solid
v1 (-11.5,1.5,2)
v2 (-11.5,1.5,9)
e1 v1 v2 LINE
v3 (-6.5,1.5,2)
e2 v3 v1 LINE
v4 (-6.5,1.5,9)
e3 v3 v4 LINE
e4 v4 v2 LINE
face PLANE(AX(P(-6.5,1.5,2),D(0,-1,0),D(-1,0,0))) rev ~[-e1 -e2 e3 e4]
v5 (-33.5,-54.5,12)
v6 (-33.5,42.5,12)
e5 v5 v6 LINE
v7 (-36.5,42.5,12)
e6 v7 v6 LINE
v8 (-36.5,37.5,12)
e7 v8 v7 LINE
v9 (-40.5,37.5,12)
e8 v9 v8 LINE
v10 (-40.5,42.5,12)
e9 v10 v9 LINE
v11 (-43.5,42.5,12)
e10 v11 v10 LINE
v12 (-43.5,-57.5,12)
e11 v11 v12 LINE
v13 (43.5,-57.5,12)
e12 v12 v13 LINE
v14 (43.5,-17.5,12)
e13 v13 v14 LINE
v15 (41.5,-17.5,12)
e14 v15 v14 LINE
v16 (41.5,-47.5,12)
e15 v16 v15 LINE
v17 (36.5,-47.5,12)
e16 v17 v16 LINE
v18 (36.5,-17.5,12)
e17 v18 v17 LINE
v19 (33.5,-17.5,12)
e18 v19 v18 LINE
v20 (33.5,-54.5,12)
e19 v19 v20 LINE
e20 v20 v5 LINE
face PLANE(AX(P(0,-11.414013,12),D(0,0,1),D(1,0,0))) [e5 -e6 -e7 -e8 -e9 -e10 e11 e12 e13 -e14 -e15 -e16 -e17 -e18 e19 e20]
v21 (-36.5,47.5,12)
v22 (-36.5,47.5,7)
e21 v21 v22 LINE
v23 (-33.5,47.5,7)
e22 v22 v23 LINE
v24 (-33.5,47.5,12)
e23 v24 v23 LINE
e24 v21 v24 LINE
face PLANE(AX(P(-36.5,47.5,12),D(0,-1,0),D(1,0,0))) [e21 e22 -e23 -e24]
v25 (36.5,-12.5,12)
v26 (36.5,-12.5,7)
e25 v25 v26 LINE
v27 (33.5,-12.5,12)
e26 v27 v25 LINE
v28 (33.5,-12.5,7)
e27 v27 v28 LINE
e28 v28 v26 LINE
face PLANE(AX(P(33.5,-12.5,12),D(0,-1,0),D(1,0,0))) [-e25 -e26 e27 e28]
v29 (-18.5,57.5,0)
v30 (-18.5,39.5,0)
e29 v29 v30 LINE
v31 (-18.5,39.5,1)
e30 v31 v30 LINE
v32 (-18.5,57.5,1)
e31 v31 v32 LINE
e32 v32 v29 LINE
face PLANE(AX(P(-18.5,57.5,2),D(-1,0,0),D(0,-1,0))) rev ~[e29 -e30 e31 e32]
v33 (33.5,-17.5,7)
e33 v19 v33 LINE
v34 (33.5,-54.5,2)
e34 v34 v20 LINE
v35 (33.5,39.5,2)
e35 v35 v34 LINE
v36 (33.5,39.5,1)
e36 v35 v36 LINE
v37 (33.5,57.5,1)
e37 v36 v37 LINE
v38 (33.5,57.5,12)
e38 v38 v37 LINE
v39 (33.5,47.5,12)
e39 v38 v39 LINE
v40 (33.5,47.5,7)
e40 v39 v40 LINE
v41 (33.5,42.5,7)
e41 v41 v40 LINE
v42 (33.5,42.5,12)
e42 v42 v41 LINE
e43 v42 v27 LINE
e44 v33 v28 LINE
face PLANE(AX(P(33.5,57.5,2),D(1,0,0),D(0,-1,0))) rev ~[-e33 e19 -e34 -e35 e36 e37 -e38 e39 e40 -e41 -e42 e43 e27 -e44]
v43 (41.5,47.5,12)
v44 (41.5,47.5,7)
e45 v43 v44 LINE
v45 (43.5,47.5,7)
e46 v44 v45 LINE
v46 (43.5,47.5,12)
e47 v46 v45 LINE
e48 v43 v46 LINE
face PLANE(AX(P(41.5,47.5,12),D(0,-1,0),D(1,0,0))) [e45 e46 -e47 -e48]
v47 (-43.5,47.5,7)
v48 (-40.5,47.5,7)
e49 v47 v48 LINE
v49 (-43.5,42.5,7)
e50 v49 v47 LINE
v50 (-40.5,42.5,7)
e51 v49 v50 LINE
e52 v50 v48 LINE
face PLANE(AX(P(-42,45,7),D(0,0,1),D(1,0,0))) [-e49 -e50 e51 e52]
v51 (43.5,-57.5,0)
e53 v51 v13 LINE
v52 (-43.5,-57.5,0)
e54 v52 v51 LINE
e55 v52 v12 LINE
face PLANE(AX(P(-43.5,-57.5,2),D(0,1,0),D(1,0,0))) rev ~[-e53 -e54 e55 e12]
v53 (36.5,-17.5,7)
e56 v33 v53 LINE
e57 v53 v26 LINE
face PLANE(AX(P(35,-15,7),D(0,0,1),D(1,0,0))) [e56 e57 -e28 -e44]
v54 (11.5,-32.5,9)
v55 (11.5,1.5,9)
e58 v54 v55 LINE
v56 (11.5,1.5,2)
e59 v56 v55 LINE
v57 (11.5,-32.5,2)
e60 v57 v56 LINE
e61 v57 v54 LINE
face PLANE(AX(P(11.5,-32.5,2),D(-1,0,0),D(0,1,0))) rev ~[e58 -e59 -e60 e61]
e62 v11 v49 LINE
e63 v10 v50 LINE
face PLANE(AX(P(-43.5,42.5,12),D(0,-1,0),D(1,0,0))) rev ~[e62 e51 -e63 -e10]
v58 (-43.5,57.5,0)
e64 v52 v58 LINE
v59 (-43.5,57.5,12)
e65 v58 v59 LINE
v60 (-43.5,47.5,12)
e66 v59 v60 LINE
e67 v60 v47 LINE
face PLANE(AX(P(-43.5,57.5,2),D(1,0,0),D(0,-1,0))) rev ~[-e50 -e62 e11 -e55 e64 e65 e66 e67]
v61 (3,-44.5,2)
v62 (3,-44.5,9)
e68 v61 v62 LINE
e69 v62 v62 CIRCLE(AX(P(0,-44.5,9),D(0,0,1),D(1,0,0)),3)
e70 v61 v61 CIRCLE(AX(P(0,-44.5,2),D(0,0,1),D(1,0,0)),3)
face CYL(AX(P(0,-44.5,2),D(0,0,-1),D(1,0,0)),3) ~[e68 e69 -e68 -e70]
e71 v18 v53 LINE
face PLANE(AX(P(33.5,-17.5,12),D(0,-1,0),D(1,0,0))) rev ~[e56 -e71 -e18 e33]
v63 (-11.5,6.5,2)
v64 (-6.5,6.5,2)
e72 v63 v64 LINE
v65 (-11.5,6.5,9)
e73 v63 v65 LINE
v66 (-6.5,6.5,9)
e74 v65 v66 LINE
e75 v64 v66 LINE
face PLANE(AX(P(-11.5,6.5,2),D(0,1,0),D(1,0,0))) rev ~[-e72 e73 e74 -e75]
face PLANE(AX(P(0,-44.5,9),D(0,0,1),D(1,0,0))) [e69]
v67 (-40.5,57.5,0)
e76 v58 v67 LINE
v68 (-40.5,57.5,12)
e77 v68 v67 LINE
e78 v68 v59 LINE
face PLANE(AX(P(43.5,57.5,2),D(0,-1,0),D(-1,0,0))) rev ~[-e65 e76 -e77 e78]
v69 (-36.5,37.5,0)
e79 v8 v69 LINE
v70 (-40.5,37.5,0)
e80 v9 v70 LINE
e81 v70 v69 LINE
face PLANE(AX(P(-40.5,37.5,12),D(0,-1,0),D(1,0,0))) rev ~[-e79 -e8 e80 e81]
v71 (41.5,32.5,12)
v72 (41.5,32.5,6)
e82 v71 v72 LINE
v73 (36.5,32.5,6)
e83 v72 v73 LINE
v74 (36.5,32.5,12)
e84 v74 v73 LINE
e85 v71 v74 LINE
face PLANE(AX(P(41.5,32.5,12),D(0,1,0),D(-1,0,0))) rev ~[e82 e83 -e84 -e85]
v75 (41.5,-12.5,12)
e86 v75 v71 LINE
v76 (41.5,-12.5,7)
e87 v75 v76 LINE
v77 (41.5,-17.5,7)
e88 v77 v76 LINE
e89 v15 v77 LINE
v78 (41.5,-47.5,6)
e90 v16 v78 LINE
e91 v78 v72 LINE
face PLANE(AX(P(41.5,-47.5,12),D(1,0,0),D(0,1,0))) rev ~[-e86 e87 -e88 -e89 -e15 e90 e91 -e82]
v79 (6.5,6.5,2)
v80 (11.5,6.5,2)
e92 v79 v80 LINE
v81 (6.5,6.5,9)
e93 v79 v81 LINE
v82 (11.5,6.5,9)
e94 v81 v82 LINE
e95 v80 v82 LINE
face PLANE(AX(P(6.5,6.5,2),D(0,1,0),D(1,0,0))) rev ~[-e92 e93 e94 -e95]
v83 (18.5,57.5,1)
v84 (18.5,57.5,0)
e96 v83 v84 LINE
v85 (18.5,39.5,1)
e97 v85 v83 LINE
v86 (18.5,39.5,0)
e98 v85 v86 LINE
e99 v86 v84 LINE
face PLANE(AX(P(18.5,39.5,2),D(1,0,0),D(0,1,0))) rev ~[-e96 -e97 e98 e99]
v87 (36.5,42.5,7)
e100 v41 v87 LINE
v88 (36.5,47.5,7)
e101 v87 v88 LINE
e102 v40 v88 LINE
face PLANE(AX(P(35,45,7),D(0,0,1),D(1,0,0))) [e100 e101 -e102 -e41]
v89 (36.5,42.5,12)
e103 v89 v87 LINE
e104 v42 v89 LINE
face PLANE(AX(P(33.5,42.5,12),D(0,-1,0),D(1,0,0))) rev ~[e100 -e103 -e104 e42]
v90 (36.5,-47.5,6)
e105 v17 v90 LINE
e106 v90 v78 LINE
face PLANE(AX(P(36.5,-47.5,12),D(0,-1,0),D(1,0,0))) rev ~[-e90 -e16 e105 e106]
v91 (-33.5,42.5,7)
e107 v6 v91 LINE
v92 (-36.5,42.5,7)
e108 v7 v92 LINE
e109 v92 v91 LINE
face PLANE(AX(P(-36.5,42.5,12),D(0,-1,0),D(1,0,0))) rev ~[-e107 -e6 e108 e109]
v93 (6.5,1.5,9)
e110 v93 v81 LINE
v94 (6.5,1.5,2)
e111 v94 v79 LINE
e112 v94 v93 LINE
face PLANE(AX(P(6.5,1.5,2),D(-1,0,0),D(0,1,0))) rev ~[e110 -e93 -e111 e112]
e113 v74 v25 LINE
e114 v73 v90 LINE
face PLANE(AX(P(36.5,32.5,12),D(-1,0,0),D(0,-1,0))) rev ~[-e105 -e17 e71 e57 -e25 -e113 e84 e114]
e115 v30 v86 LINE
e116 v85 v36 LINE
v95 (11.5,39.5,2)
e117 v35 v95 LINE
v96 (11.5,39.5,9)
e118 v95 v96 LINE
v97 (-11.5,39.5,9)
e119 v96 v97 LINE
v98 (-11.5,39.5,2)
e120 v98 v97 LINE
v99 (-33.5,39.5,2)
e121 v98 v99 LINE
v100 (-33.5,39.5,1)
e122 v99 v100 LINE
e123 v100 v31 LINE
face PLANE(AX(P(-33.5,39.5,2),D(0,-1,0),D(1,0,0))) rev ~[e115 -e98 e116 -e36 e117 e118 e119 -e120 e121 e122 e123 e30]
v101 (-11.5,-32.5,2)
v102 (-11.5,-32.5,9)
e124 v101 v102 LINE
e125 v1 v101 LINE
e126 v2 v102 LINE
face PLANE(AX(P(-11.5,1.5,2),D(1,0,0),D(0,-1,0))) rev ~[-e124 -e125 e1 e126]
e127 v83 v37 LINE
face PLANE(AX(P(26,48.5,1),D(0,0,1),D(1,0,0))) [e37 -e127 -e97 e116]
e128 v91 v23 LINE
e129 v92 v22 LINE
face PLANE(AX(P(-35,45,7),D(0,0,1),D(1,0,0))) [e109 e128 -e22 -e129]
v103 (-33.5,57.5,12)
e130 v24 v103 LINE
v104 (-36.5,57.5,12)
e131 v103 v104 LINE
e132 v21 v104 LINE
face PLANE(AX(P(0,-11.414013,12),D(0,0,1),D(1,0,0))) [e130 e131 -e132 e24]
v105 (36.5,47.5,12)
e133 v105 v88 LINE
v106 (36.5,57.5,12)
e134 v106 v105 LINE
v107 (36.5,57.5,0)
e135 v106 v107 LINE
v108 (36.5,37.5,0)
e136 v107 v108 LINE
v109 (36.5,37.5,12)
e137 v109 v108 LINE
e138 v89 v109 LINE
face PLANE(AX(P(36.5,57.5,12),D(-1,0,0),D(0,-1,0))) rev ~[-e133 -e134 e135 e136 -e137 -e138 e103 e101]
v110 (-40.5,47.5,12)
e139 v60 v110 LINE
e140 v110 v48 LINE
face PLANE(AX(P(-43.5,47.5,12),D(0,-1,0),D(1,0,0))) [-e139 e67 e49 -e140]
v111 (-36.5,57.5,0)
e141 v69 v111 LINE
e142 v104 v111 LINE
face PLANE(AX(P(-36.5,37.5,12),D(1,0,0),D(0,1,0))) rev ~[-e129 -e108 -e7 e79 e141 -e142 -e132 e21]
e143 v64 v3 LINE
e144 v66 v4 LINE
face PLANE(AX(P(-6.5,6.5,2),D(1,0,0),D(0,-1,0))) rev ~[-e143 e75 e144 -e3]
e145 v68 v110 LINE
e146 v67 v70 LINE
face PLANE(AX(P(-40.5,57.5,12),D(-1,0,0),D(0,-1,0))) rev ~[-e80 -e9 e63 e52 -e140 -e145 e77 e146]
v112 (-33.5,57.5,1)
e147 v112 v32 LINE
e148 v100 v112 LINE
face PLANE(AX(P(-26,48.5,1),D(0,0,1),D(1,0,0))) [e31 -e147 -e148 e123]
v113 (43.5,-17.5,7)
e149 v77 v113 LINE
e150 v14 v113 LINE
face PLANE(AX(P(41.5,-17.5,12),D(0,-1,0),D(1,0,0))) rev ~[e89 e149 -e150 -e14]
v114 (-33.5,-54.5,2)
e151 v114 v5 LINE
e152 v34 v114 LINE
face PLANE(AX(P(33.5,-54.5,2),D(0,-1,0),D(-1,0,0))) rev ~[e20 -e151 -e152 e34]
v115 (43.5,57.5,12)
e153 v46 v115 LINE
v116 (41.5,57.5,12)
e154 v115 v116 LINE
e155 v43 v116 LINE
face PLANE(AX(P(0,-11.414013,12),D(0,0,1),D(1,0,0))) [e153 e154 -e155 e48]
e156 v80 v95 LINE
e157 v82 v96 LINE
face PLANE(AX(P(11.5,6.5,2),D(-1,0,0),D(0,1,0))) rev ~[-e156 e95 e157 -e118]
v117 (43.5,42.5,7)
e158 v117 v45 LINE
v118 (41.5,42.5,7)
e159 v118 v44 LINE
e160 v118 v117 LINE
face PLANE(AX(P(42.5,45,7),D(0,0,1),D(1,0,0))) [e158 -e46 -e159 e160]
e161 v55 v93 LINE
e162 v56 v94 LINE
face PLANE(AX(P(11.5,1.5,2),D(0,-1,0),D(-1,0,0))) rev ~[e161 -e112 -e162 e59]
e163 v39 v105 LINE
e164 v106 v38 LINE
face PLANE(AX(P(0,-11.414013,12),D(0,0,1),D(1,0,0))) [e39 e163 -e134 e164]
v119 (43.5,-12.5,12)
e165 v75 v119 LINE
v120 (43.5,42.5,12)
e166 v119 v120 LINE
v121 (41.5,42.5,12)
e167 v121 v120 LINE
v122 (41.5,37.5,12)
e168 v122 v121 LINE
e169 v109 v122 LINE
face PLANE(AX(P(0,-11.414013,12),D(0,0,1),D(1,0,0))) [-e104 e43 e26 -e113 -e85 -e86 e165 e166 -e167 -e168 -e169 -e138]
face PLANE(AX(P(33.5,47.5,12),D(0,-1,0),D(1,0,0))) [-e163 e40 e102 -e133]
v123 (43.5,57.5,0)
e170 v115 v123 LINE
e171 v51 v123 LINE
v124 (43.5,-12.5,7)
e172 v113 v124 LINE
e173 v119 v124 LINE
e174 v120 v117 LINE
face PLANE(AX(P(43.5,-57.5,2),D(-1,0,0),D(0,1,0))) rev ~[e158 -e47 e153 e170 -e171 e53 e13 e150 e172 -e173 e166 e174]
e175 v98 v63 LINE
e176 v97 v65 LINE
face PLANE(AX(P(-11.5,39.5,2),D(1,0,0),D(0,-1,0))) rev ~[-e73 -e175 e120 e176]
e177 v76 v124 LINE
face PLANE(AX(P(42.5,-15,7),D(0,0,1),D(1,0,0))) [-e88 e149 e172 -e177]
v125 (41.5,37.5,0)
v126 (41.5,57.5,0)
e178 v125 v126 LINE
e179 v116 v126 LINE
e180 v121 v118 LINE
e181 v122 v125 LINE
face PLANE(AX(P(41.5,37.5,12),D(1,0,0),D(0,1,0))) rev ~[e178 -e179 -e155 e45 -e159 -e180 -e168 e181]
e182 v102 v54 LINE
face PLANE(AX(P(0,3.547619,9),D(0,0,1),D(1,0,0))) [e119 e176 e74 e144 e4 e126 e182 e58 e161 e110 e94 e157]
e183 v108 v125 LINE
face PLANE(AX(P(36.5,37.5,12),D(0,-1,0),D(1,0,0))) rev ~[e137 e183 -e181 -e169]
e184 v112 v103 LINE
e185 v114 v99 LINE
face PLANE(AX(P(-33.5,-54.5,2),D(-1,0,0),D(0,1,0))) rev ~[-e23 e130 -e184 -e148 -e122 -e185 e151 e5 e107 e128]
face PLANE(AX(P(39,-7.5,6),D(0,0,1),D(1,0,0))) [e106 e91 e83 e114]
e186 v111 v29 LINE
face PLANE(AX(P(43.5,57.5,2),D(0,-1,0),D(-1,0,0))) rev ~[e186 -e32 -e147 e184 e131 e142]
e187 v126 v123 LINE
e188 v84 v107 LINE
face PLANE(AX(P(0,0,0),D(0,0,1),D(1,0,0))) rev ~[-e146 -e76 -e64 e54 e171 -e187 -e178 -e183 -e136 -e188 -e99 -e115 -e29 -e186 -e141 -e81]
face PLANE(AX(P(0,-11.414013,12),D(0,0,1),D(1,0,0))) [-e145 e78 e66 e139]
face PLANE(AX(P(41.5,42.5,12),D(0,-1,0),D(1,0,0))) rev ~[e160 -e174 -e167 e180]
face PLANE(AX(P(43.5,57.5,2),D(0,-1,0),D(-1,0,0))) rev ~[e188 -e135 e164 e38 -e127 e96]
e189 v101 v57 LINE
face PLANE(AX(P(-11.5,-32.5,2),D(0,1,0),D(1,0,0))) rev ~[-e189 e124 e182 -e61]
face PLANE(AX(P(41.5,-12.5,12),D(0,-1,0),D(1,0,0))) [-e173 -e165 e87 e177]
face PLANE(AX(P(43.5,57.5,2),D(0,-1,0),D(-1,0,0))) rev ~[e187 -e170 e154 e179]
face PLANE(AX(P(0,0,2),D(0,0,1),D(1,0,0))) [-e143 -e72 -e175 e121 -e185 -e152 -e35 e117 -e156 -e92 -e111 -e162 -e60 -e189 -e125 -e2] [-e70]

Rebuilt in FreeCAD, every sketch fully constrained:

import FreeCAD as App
import Part
import Sketcher
Q = App.Units.Quantity

doc = App.newDocument("Part")
body = doc.addObject("PartDesign::Body", "Body")

# Sketch on XY plane
sketch1 = body.newObject("Sketcher::SketchObject", "Sketch")
sketch1.AttachmentSupport = (doc.getObject("XY_Plane"), [""])
sketch1.MapMode = "FlatFace"
sketch1.addGeometry(Part.LineSegment(App.Vector(-44, 58, 0), App.Vector(-44, -58, 0)), False)
sketch1.addGeometry(Part.LineSegment(App.Vector(-44, -58, 0), App.Vector(44, -58, 0)), False)
sketch1.addGeometry(Part.LineSegment(App.Vector(44, -58, 0), App.Vector(44, 58, 0)), False)
sketch1.addGeometry(Part.LineSegment(App.Vector(44, 58, 0), App.Vector(-44, 58, 0)), False)
sketch1.addConstraint(Sketcher.Constraint("Coincident", 0, 2, 1, 1))
sketch1.addConstraint(Sketcher.Constraint("Coincident", 1, 2, 2, 1))
sketch1.addConstraint(Sketcher.Constraint("Coincident", 2, 2, 3, 1))
sketch1.addConstraint(Sketcher.Constraint("Coincident", 3, 2, 0, 1))
sketch1.addConstraint(Sketcher.Constraint("Vertical", 0))
sketch1.addConstraint(Sketcher.Constraint("Horizontal", 1))
sketch1.addConstraint(Sketcher.Constraint("Vertical", 2))
sketch1.addConstraint(Sketcher.Constraint("Horizontal", 3))
sketch1.addConstraint(Sketcher.Constraint("Symmetric", 0, 2, 2, 2, -1, 1))
sketch1.addConstraint(Sketcher.Constraint("DistanceX", 1, 1, 1, 2, Q("87 mm")))
sketch1.addConstraint(Sketcher.Constraint("DistanceY", 0, 2, 0, 1, Q("115 mm")))
pad1 = body.newObject("PartDesign::Pad", "Pad")
pad1.Profile = sketch1
pad1.Length = 2

# Sketch on XY plane
sketch2 = body.newObject("Sketcher::SketchObject", "Sketch001")
sketch2.AttachmentSupport = (doc.getObject("XY_Plane"), [""])
sketch2.MapMode = "FlatFace"
sketch2.AttachmentOffset = App.Placement(App.Vector(0, 0, 2), App.Rotation())
sketch2.addGeometry(Part.LineSegment(App.Vector(34, -54, 0), App.Vector(-34, -54, 0)), False)
sketch2.addGeometry(Part.LineSegment(App.Vector(-34, -54, 0), App.Vector(-34, 58, 0)), False)
sketch2.addGeometry(Part.LineSegment(App.Vector(-34, 58, 0), App.Vector(-44, 58, 0)), False)
sketch2.addGeometry(Part.LineSegment(App.Vector(-44, 58, 0), App.Vector(-44, -58, 0)), False)
sketch2.addGeometry(Part.LineSegment(App.Vector(-44, -58, 0), App.Vector(44, -58, 0)), False)
sketch2.addGeometry(Part.LineSegment(App.Vector(44, -58, 0), App.Vector(44, 58, 0)), False)
sketch2.addGeometry(Part.LineSegment(App.Vector(44, 58, 0), App.Vector(34, 58, 0)), False)
sketch2.addGeometry(Part.LineSegment(App.Vector(34, 58, 0), App.Vector(34, -54, 0)), False)
sketch2.addConstraint(Sketcher.Constraint("Coincident", 0, 2, 1, 1))
sketch2.addConstraint(Sketcher.Constraint("Coincident", 1, 2, 2, 1))
sketch2.addConstraint(Sketcher.Constraint("Coincident", 2, 2, 3, 1))
sketch2.addConstraint(Sketcher.Constraint("Coincident", 3, 2, 4, 1))
sketch2.addConstraint(Sketcher.Constraint("Coincident", 4, 2, 5, 1))
sketch2.addConstraint(Sketcher.Constraint("Coincident", 5, 2, 6, 1))
sketch2.addConstraint(Sketcher.Constraint("Coincident", 6, 2, 7, 1))
sketch2.addConstraint(Sketcher.Constraint("Coincident", 7, 2, 0, 1))
sketch2.addConstraint(Sketcher.Constraint("Horizontal", 0))
sketch2.addConstraint(Sketcher.Constraint("Vertical", 1))
sketch2.addConstraint(Sketcher.Constraint("Horizontal", 2))
sketch2.addConstraint(Sketcher.Constraint("Vertical", 3))
sketch2.addConstraint(Sketcher.Constraint("Horizontal", 4))
sketch2.addConstraint(Sketcher.Constraint("Vertical", 5))
sketch2.addConstraint(Sketcher.Constraint("Horizontal", 6))
sketch2.addConstraint(Sketcher.Constraint("Vertical", 7))
sketch2.addConstraint(Sketcher.Constraint("Symmetric", 2, 2, 4, 2, -1, 1))
sketch2.addConstraint(Sketcher.Constraint("Symmetric", 1, 2, 6, 2, -2))
sketch2.addConstraint(Sketcher.Constraint("DistanceX", 0, 2, 0, 1, Q("67 mm")))
sketch2.addConstraint(Sketcher.Constraint("DistanceX", 2, 2, 2, 1, Q("10 mm")))
sketch2.addConstraint(Sketcher.Constraint("DistanceY", 1, 1, 1, 2, Q("112 mm")))
sketch2.addConstraint(Sketcher.Constraint("DistanceY", 3, 2, 3, 1, Q("115 mm")))
pad2 = body.newObject("PartDesign::Pad", "Pad001")
pad2.Profile = sketch2
pad2.Length = 10

# Sketch on XY plane
sketch3 = body.newObject("Sketcher::SketchObject", "Sketch002")
sketch3.AttachmentSupport = (doc.getObject("XY_Plane"), [""])
sketch3.MapMode = "FlatFace"
sketch3.AttachmentOffset = App.Placement(App.Vector(0, 0, 2), App.Rotation())
sketch3.addGeometry(Part.Circle(App.Vector(0, -44.5, 0), App.Vector(0, 0, 1), 3), False)
sketch3.addConstraint(Sketcher.Constraint("PointOnObject", 0, 3, -2))
sketch3.addConstraint(Sketcher.Constraint("Diameter", 0, Q("6 mm")))
sketch3.addConstraint(Sketcher.Constraint("DistanceY", 0, 3, -1, 1, Q("44.5 mm")))
pad3 = body.newObject("PartDesign::Pad", "Pad002")
pad3.Profile = sketch3
pad3.Length = 7

# Sketch on XY plane
sketch4 = body.newObject("Sketcher::SketchObject", "Sketch003")
sketch4.AttachmentSupport = (doc.getObject("XY_Plane"), [""])
sketch4.MapMode = "FlatFace"
sketch4.AttachmentOffset = App.Placement(App.Vector(0, 0, 2), App.Rotation())
sketch4.addGeometry(Part.LineSegment(App.Vector(12, 40, 0), App.Vector(-12, 40, 0)), False)
sketch4.addGeometry(Part.LineSegment(App.Vector(-12, 40, 0), App.Vector(-12, 6, 0)), False)
sketch4.addGeometry(Part.LineSegment(App.Vector(-12, 6, 0), App.Vector(-6, 6, 0)), False)
sketch4.addGeometry(Part.LineSegment(App.Vector(-6, 6, 0), App.Vector(-6, 2, 0)), False)
sketch4.addGeometry(Part.LineSegment(App.Vector(-6, 2, 0), App.Vector(-12, 2, 0)), False)
sketch4.addGeometry(Part.LineSegment(App.Vector(-12, 2, 0), App.Vector(-12, -32, 0)), False)
sketch4.addGeometry(Part.LineSegment(App.Vector(-12, -32, 0), App.Vector(12, -32, 0)), False)
sketch4.addGeometry(Part.LineSegment(App.Vector(12, -32, 0), App.Vector(12, 2, 0)), False)
sketch4.addGeometry(Part.LineSegment(App.Vector(12, 2, 0), App.Vector(6, 2, 0)), False)
sketch4.addGeometry(Part.LineSegment(App.Vector(6, 2, 0), App.Vector(6, 6, 0)), False)
sketch4.addGeometry(Part.LineSegment(App.Vector(6, 6, 0), App.Vector(12, 6, 0)), False)
sketch4.addGeometry(Part.LineSegment(App.Vector(12, 6, 0), App.Vector(12, 40, 0)), False)
sketch4.addConstraint(Sketcher.Constraint("Coincident", 0, 2, 1, 1))
sketch4.addConstraint(Sketcher.Constraint("Coincident", 1, 2, 2, 1))
sketch4.addConstraint(Sketcher.Constraint("Coincident", 2, 2, 3, 1))
sketch4.addConstraint(Sketcher.Constraint("Coincident", 3, 2, 4, 1))
sketch4.addConstraint(Sketcher.Constraint("Coincident", 4, 2, 5, 1))
sketch4.addConstraint(Sketcher.Constraint("Coincident", 5, 2, 6, 1))
sketch4.addConstraint(Sketcher.Constraint("Coincident", 6, 2, 7, 1))
sketch4.addConstraint(Sketcher.Constraint("Coincident", 7, 2, 8, 1))
sketch4.addConstraint(Sketcher.Constraint("Coincident", 8, 2, 9, 1))
sketch4.addConstraint(Sketcher.Constraint("Coincident", 9, 2, 10, 1))
sketch4.addConstraint(Sketcher.Constraint("Coincident", 10, 2, 11, 1))
sketch4.addConstraint(Sketcher.Constraint("Coincident", 11, 2, 0, 1))
sketch4.addConstraint(Sketcher.Constraint("Horizontal", 0))
sketch4.addConstraint(Sketcher.Constraint("Vertical", 1))
sketch4.addConstraint(Sketcher.Constraint("Horizontal", 2))
sketch4.addConstraint(Sketcher.Constraint("Vertical", 3))
sketch4.addConstraint(Sketcher.Constraint("Horizontal", 4))
sketch4.addConstraint(Sketcher.Constraint("Vertical", 5))
sketch4.addConstraint(Sketcher.Constraint("Horizontal", 6))
sketch4.addConstraint(Sketcher.Constraint("Vertical", 7))
sketch4.addConstraint(Sketcher.Constraint("Horizontal", 8))
sketch4.addConstraint(Sketcher.Constraint("Vertical", 9))
sketch4.addConstraint(Sketcher.Constraint("Horizontal", 10))
sketch4.addConstraint(Sketcher.Constraint("Vertical", 11))
sketch4.addConstraint(Sketcher.Constraint("Symmetric", 4, 2, 7, 2, -2))
sketch4.addConstraint(Sketcher.Constraint("Symmetric", 2, 2, 9, 2, -2))
sketch4.addConstraint(Sketcher.Constraint("Vertical", 1, 2, 4, 2))
sketch4.addConstraint(Sketcher.Constraint("Vertical", 7, 2, 10, 2))
sketch4.addConstraint(Sketcher.Constraint("Equal", 10, 3))
sketch4.addConstraint(Sketcher.Constraint("DistanceX", 0, 2, 0, 1, Q("23 mm")))
sketch4.addConstraint(Sketcher.Constraint("DistanceX", 2, 1, 2, 2, Q("5 mm")))
sketch4.addConstraint(Sketcher.Constraint("DistanceY", 1, 2, 1, 1, Q("33 mm")))
sketch4.addConstraint(Sketcher.Constraint("DistanceY", 5, 2, 5, 1, Q("34 mm")))
sketch4.addConstraint(Sketcher.Constraint("DistanceY", -1, 1, 0, 2, Q("39.5 mm")))
pad4 = body.newObject("PartDesign::Pad", "Pad003")
pad4.Profile = sketch4
pad4.Length = 7

# Sketch on XY plane
sketch5 = body.newObject("Sketcher::SketchObject", "Sketch004")
sketch5.AttachmentSupport = (doc.getObject("XY_Plane"), [""])
sketch5.MapMode = "FlatFace"
sketch5.AttachmentOffset = App.Placement(App.Vector(0, 0, 2), App.Rotation())
sketch5.addGeometry(Part.LineSegment(App.Vector(-18, 58, 0), App.Vector(-18, 40, 0)), False)
sketch5.addGeometry(Part.LineSegment(App.Vector(-18, 40, 0), App.Vector(18, 40, 0)), False)
sketch5.addGeometry(Part.LineSegment(App.Vector(18, 40, 0), App.Vector(18, 58, 0)), False)
sketch5.addGeometry(Part.LineSegment(App.Vector(18, 58, 0), App.Vector(-18, 58, 0)), False)
sketch5.addConstraint(Sketcher.Constraint("Coincident", 0, 2, 1, 1))
sketch5.addConstraint(Sketcher.Constraint("Coincident", 1, 2, 2, 1))
sketch5.addConstraint(Sketcher.Constraint("Coincident", 2, 2, 3, 1))
sketch5.addConstraint(Sketcher.Constraint("Coincident", 3, 2, 0, 1))
sketch5.addConstraint(Sketcher.Constraint("Vertical", 0))
sketch5.addConstraint(Sketcher.Constraint("Horizontal", 1))
sketch5.addConstraint(Sketcher.Constraint("Vertical", 2))
sketch5.addConstraint(Sketcher.Constraint("Horizontal", 3))
sketch5.addConstraint(Sketcher.Constraint("DistanceX", 1, 1, 1, 2, Q("37 mm")))
sketch5.addConstraint(Sketcher.Constraint("DistanceY", 0, 2, 0, 1, Q("18 mm")))
sketch5.addConstraint(Sketcher.Constraint("DistanceX", 0, 2, -1, 1, Q("18.5 mm")))
sketch5.addConstraint(Sketcher.Constraint("DistanceY", -1, 1, 0, 2, Q("39.5 mm")))
pocket1 = body.newObject("PartDesign::Pocket", "Pocket")
pocket1.Profile = sketch5
pocket1.Length = 25

# Sketch on XY plane
sketch6 = body.newObject("Sketcher::SketchObject", "Sketch005")
sketch6.AttachmentSupport = (doc.getObject("XY_Plane"), [""])
sketch6.MapMode = "FlatFace"
sketch6.AttachmentOffset = App.Placement(App.Vector(0, 0, 12), App.Rotation())
sketch6.addGeometry(Part.LineSegment(App.Vector(42, 32, 0), App.Vector(36, 32, 0)), False)
sketch6.addGeometry(Part.LineSegment(App.Vector(36, 32, 0), App.Vector(36, -48, 0)), False)
sketch6.addGeometry(Part.LineSegment(App.Vector(36, -48, 0), App.Vector(42, -48, 0)), False)
sketch6.addGeometry(Part.LineSegment(App.Vector(42, -48, 0), App.Vector(42, 32, 0)), False)
sketch6.addConstraint(Sketcher.Constraint("Coincident", 0, 2, 1, 1))
sketch6.addConstraint(Sketcher.Constraint("Coincident", 1, 2, 2, 1))
sketch6.addConstraint(Sketcher.Constraint("Coincident", 2, 2, 3, 1))
sketch6.addConstraint(Sketcher.Constraint("Coincident", 3, 2, 0, 1))
sketch6.addConstraint(Sketcher.Constraint("Horizontal", 0))
sketch6.addConstraint(Sketcher.Constraint("Vertical", 1))
sketch6.addConstraint(Sketcher.Constraint("Horizontal", 2))
sketch6.addConstraint(Sketcher.Constraint("Vertical", 3))
sketch6.addConstraint(Sketcher.Constraint("DistanceX", 0, 2, 0, 1, Q("5 mm")))
sketch6.addConstraint(Sketcher.Constraint("DistanceY", 1, 2, 1, 1, Q("80 mm")))
sketch6.addConstraint(Sketcher.Constraint("DistanceX", -1, 1, 0, 2, Q("36.5 mm")))
sketch6.addConstraint(Sketcher.Constraint("DistanceY", -1, 1, 0, 2, Q("32.5 mm")))
pocket2 = body.newObject("PartDesign::Pocket", "Pocket001")
pocket2.Profile = sketch6
pocket2.Length = 6

# Sketch on XY plane
sketch7 = body.newObject("Sketcher::SketchObject", "Sketch006")
sketch7.AttachmentSupport = (doc.getObject("XY_Plane"), [""])
sketch7.MapMode = "FlatFace"
sketch7.AttachmentOffset = App.Placement(App.Vector(0, 0, 12), App.Rotation())
sketch7.addGeometry(Part.LineSegment(App.Vector(-40.5, 37.5, 0), App.Vector(-36.5, 37.5, 0)), False)
sketch7.addGeometry(Part.LineSegment(App.Vector(-36.5, 37.5, 0), App.Vector(-36.5, 57.5, 0)), False)
sketch7.addGeometry(Part.LineSegment(App.Vector(-36.5, 57.5, 0), App.Vector(-40.5, 57.5, 0)), False)
sketch7.addGeometry(Part.LineSegment(App.Vector(-40.5, 57.5, 0), App.Vector(-40.5, 37.5, 0)), False)
sketch7.addGeometry(Part.LineSegment(App.Vector(36.5, 57.5, 0), App.Vector(36.5, 37.5, 0)), False)
sketch7.addGeometry(Part.LineSegment(App.Vector(36.5, 37.5, 0), App.Vector(41.5, 37.5, 0)), False)
sketch7.addGeometry(Part.LineSegment(App.Vector(41.5, 37.5, 0), App.Vector(41.5, 57.5, 0)), False)
sketch7.addGeometry(Part.LineSegment(App.Vector(41.5, 57.5, 0), App.Vector(36.5, 57.5, 0)), False)
sketch7.addConstraint(Sketcher.Constraint("Coincident", 0, 2, 1, 1))
sketch7.addConstraint(Sketcher.Constraint("Coincident", 1, 2, 2, 1))
sketch7.addConstraint(Sketcher.Constraint("Coincident", 2, 2, 3, 1))
sketch7.addConstraint(Sketcher.Constraint("Coincident", 3, 2, 0, 1))
sketch7.addConstraint(Sketcher.Constraint("Coincident", 4, 2, 5, 1))
sketch7.addConstraint(Sketcher.Constraint("Coincident", 5, 2, 6, 1))
sketch7.addConstraint(Sketcher.Constraint("Coincident", 6, 2, 7, 1))
sketch7.addConstraint(Sketcher.Constraint("Coincident", 7, 2, 4, 1))
sketch7.addConstraint(Sketcher.Constraint("Horizontal", 0))
sketch7.addConstraint(Sketcher.Constraint("Vertical", 1))
sketch7.addConstraint(Sketcher.Constraint("Horizontal", 2))
sketch7.addConstraint(Sketcher.Constraint("Vertical", 3))
sketch7.addConstraint(Sketcher.Constraint("Vertical", 4))
sketch7.addConstraint(Sketcher.Constraint("Horizontal", 5))
sketch7.addConstraint(Sketcher.Constraint("Vertical", 6))
sketch7.addConstraint(Sketcher.Constraint("Horizontal", 7))
sketch7.addConstraint(Sketcher.Constraint("Symmetric", 0, 2, 4, 2, -2))
sketch7.addConstraint(Sketcher.Constraint("Horizontal", 2, 2, 6, 2))
sketch7.addConstraint(Sketcher.Constraint("DistanceX", 0, 1, 0, 2, Q("4 mm")))
sketch7.addConstraint(Sketcher.Constraint("DistanceX", 5, 1, 5, 2, Q("5 mm")))
sketch7.addConstraint(Sketcher.Constraint("DistanceY", 1, 1, 1, 2, Q("20 mm")))
sketch7.addConstraint(Sketcher.Constraint("DistanceX", 0, 2, 4, 2, Q("73 mm")))
sketch7.addConstraint(Sketcher.Constraint("DistanceY", -1, 1, 0, 2, Q("37.5 mm")))
pocket3 = body.newObject("PartDesign::Pocket", "Pocket002")
pocket3.Profile = sketch7
pocket3.Length = 25

# Sketch on XY plane
sketch8 = body.newObject("Sketcher::SketchObject", "Sketch007")
sketch8.AttachmentSupport = (doc.getObject("XY_Plane"), [""])
sketch8.MapMode = "FlatFace"
sketch8.AttachmentOffset = App.Placement(App.Vector(0, 0, 12), App.Rotation())
sketch8.addGeometry(Part.LineSegment(App.Vector(-43.5, 47.5, 0), App.Vector(-43.5, 42.5, 0)), False)
sketch8.addGeometry(Part.LineSegment(App.Vector(-43.5, 42.5, 0), App.Vector(-40.5, 42.5, 0)), False)
sketch8.addGeometry(Part.LineSegment(App.Vector(-40.5, 42.5, 0), App.Vector(-40.5, 47.5, 0)), False)
sketch8.addGeometry(Part.LineSegment(App.Vector(-40.5, 47.5, 0), App.Vector(-43.5, 47.5, 0)), False)
sketch8.addGeometry(Part.LineSegment(App.Vector(-36.5, 47.5, 0), App.Vector(-36.5, 42.5, 0)), False)
sketch8.addGeometry(Part.LineSegment(App.Vector(-36.5, 42.5, 0), App.Vector(-33.5, 42.5, 0)), False)
sketch8.addGeometry(Part.LineSegment(App.Vector(-33.5, 42.5, 0), App.Vector(-33.5, 47.5, 0)), False)
sketch8.addGeometry(Part.LineSegment(App.Vector(-33.5, 47.5, 0), App.Vector(-36.5, 47.5, 0)), False)
sketch8.addConstraint(Sketcher.Constraint("Coincident", 0, 2, 1, 1))
sketch8.addConstraint(Sketcher.Constraint("Coincident", 1, 2, 2, 1))
sketch8.addConstraint(Sketcher.Constraint("Coincident", 2, 2, 3, 1))
sketch8.addConstraint(Sketcher.Constraint("Coincident", 3, 2, 0, 1))
sketch8.addConstraint(Sketcher.Constraint("Coincident", 4, 2, 5, 1))
sketch8.addConstraint(Sketcher.Constraint("Coincident", 5, 2, 6, 1))
sketch8.addConstraint(Sketcher.Constraint("Coincident", 6, 2, 7, 1))
sketch8.addConstraint(Sketcher.Constraint("Coincident", 7, 2, 4, 1))
sketch8.addConstraint(Sketcher.Constraint("Vertical", 0))
sketch8.addConstraint(Sketcher.Constraint("Horizontal", 1))
sketch8.addConstraint(Sketcher.Constraint("Vertical", 2))
sketch8.addConstraint(Sketcher.Constraint("Horizontal", 3))
sketch8.addConstraint(Sketcher.Constraint("Vertical", 4))
sketch8.addConstraint(Sketcher.Constraint("Horizontal", 5))
sketch8.addConstraint(Sketcher.Constraint("Vertical", 6))
sketch8.addConstraint(Sketcher.Constraint("Horizontal", 7))
sketch8.addConstraint(Sketcher.Constraint("Horizontal", 1, 2, 4, 2))
sketch8.addConstraint(Sketcher.Constraint("Horizontal", 3, 2, 6, 2))
sketch8.addConstraint(Sketcher.Constraint("Equal", 3, 5))
sketch8.addConstraint(Sketcher.Constraint("DistanceX", 1, 1, 1, 2, Q("3 mm")))
sketch8.addConstraint(Sketcher.Constraint("DistanceY", 0, 2, 0, 1, Q("5 mm")))
sketch8.addConstraint(Sketcher.Constraint("DistanceX", 1, 2, 4, 2, Q("4 mm")))
sketch8.addConstraint(Sketcher.Constraint("DistanceX", 0, 2, -1, 1, Q("43.5 mm")))
sketch8.addConstraint(Sketcher.Constraint("DistanceY", -1, 1, 0, 2, Q("42.5 mm")))
pocket4 = body.newObject("PartDesign::Pocket", "Pocket003")
pocket4.Profile = sketch8
pocket4.Length = 5

# Sketch on XY plane
sketch9 = body.newObject("Sketcher::SketchObject", "Sketch008")
sketch9.AttachmentSupport = (doc.getObject("XY_Plane"), [""])
sketch9.MapMode = "FlatFace"
sketch9.AttachmentOffset = App.Placement(App.Vector(0, 0, 2), App.Rotation())
sketch9.addGeometry(Part.LineSegment(App.Vector(-34, 58, 0), App.Vector(-34, 40, 0)), False)
sketch9.addGeometry(Part.LineSegment(App.Vector(-34, 40, 0), App.Vector(-18, 40, 0)), False)
sketch9.addGeometry(Part.LineSegment(App.Vector(-18, 40, 0), App.Vector(-18, 58, 0)), False)
sketch9.addGeometry(Part.LineSegment(App.Vector(-18, 58, 0), App.Vector(-34, 58, 0)), False)
sketch9.addGeometry(Part.LineSegment(App.Vector(18, 58, 0), App.Vector(18, 40, 0)), False)
sketch9.addGeometry(Part.LineSegment(App.Vector(18, 40, 0), App.Vector(34, 40, 0)), False)
sketch9.addGeometry(Part.LineSegment(App.Vector(34, 40, 0), App.Vector(34, 58, 0)), False)
sketch9.addGeometry(Part.LineSegment(App.Vector(34, 58, 0), App.Vector(18, 58, 0)), False)
sketch9.addConstraint(Sketcher.Constraint("Coincident", 0, 2, 1, 1))
sketch9.addConstraint(Sketcher.Constraint("Coincident", 1, 2, 2, 1))
sketch9.addConstraint(Sketcher.Constraint("Coincident", 2, 2, 3, 1))
sketch9.addConstraint(Sketcher.Constraint("Coincident", 3, 2, 0, 1))
sketch9.addConstraint(Sketcher.Constraint("Coincident", 4, 2, 5, 1))
sketch9.addConstraint(Sketcher.Constraint("Coincident", 5, 2, 6, 1))
sketch9.addConstraint(Sketcher.Constraint("Coincident", 6, 2, 7, 1))
sketch9.addConstraint(Sketcher.Constraint("Coincident", 7, 2, 4, 1))
sketch9.addConstraint(Sketcher.Constraint("Vertical", 0))
sketch9.addConstraint(Sketcher.Constraint("Horizontal", 1))
sketch9.addConstraint(Sketcher.Constraint("Vertical", 2))
sketch9.addConstraint(Sketcher.Constraint("Horizontal", 3))
sketch9.addConstraint(Sketcher.Constraint("Vertical", 4))
sketch9.addConstraint(Sketcher.Constraint("Horizontal", 5))
sketch9.addConstraint(Sketcher.Constraint("Vertical", 6))
sketch9.addConstraint(Sketcher.Constraint("Horizontal", 7))
sketch9.addConstraint(Sketcher.Constraint("Symmetric", 1, 2, 4, 2, -2))
sketch9.addConstraint(Sketcher.Constraint("Symmetric", 3, 2, 6, 2, -2))
sketch9.addConstraint(Sketcher.Constraint("DistanceX", 1, 1, 1, 2, Q("15 mm")))
sketch9.addConstraint(Sketcher.Constraint("DistanceY", 0, 2, 0, 1, Q("18 mm")))
sketch9.addConstraint(Sketcher.Constraint("DistanceX", 1, 2, 4, 2, Q("37 mm")))
sketch9.addConstraint(Sketcher.Constraint("DistanceY", -1, 1, 0, 2, Q("39.5 mm")))
pocket5 = body.newObject("PartDesign::Pocket", "Pocket004")
pocket5.Profile = sketch9
pocket5.Length = 1

# Sketch on XY plane
sketch10 = body.newObject("Sketcher::SketchObject", "Sketch009")
sketch10.AttachmentSupport = (doc.getObject("XY_Plane"), [""])
sketch10.MapMode = "FlatFace"
sketch10.AttachmentOffset = App.Placement(App.Vector(0, 0, 12), App.Rotation())
sketch10.addGeometry(Part.LineSegment(App.Vector(33.5, 47.5, 0), App.Vector(33.5, 42.5, 0)), False)
sketch10.addGeometry(Part.LineSegment(App.Vector(33.5, 42.5, 0), App.Vector(36.5, 42.5, 0)), False)
sketch10.addGeometry(Part.LineSegment(App.Vector(36.5, 42.5, 0), App.Vector(36.5, 47.5, 0)), False)
sketch10.addGeometry(Part.LineSegment(App.Vector(36.5, 47.5, 0), App.Vector(33.5, 47.5, 0)), False)
sketch10.addGeometry(Part.LineSegment(App.Vector(41.5, 47.5, 0), App.Vector(41.5, 42.5, 0)), False)
sketch10.addGeometry(Part.LineSegment(App.Vector(41.5, 42.5, 0), App.Vector(43.5, 42.5, 0)), False)
sketch10.addGeometry(Part.LineSegment(App.Vector(43.5, 42.5, 0), App.Vector(43.5, 47.5, 0)), False)
sketch10.addGeometry(Part.LineSegment(App.Vector(43.5, 47.5, 0), App.Vector(41.5, 47.5, 0)), False)
sketch10.addConstraint(Sketcher.Constraint("Coincident", 0, 2, 1, 1))
sketch10.addConstraint(Sketcher.Constraint("Coincident", 1, 2, 2, 1))
sketch10.addConstraint(Sketcher.Constraint("Coincident", 2, 2, 3, 1))
sketch10.addConstraint(Sketcher.Constraint("Coincident", 3, 2, 0, 1))
sketch10.addConstraint(Sketcher.Constraint("Coincident", 4, 2, 5, 1))
sketch10.addConstraint(Sketcher.Constraint("Coincident", 5, 2, 6, 1))
sketch10.addConstraint(Sketcher.Constraint("Coincident", 6, 2, 7, 1))
sketch10.addConstraint(Sketcher.Constraint("Coincident", 7, 2, 4, 1))
sketch10.addConstraint(Sketcher.Constraint("Vertical", 0))
sketch10.addConstraint(Sketcher.Constraint("Horizontal", 1))
sketch10.addConstraint(Sketcher.Constraint("Vertical", 2))
sketch10.addConstraint(Sketcher.Constraint("Horizontal", 3))
sketch10.addConstraint(Sketcher.Constraint("Vertical", 4))
sketch10.addConstraint(Sketcher.Constraint("Horizontal", 5))
sketch10.addConstraint(Sketcher.Constraint("Vertical", 6))
sketch10.addConstraint(Sketcher.Constraint("Horizontal", 7))
sketch10.addConstraint(Sketcher.Constraint("Horizontal", 1, 2, 4, 2))
sketch10.addConstraint(Sketcher.Constraint("Horizontal", 3, 2, 6, 2))
sketch10.addConstraint(Sketcher.Constraint("DistanceX", 1, 1, 1, 2, Q("3 mm")))
sketch10.addConstraint(Sketcher.Constraint("DistanceX", 5, 1, 5, 2, Q("2 mm")))
sketch10.addConstraint(Sketcher.Constraint("DistanceY", 0, 2, 0, 1, Q("5 mm")))
sketch10.addConstraint(Sketcher.Constraint("DistanceX", 1, 2, 4, 2, Q("5 mm")))
sketch10.addConstraint(Sketcher.Constraint("DistanceX", -1, 1, 0, 2, Q("33.5 mm")))
sketch10.addConstraint(Sketcher.Constraint("DistanceY", -1, 1, 0, 2, Q("42.5 mm")))
pocket6 = body.newObject("PartDesign::Pocket", "Pocket005")
pocket6.Profile = sketch10
pocket6.Length = 5

# Sketch on XY plane
sketch11 = body.newObject("Sketcher::SketchObject", "Sketch010")
sketch11.AttachmentSupport = (doc.getObject("XY_Plane"), [""])
sketch11.MapMode = "FlatFace"
sketch11.AttachmentOffset = App.Placement(App.Vector(0, 0, 12), App.Rotation())
sketch11.addGeometry(Part.LineSegment(App.Vector(33.5, -12.5, 0), App.Vector(33.5, -17.5, 0)), False)
sketch11.addGeometry(Part.LineSegment(App.Vector(33.5, -17.5, 0), App.Vector(36.5, -17.5, 0)), False)
sketch11.addGeometry(Part.LineSegment(App.Vector(36.5, -17.5, 0), App.Vector(36.5, -12.5, 0)), False)
sketch11.addGeometry(Part.LineSegment(App.Vector(36.5, -12.5, 0), App.Vector(33.5, -12.5, 0)), False)
sketch11.addGeometry(Part.LineSegment(App.Vector(41.5, -12.5, 0), App.Vector(41.5, -17.5, 0)), False)
sketch11.addGeometry(Part.LineSegment(App.Vector(41.5, -17.5, 0), App.Vector(43.5, -17.5, 0)), False)
sketch11.addGeometry(Part.LineSegment(App.Vector(43.5, -17.5, 0), App.Vector(43.5, -12.5, 0)), False)
sketch11.addGeometry(Part.LineSegment(App.Vector(43.5, -12.5, 0), App.Vector(41.5, -12.5, 0)), False)
sketch11.addConstraint(Sketcher.Constraint("Coincident", 0, 2, 1, 1))
sketch11.addConstraint(Sketcher.Constraint("Coincident", 1, 2, 2, 1))
sketch11.addConstraint(Sketcher.Constraint("Coincident", 2, 2, 3, 1))
sketch11.addConstraint(Sketcher.Constraint("Coincident", 3, 2, 0, 1))
sketch11.addConstraint(Sketcher.Constraint("Coincident", 4, 2, 5, 1))
sketch11.addConstraint(Sketcher.Constraint("Coincident", 5, 2, 6, 1))
sketch11.addConstraint(Sketcher.Constraint("Coincident", 6, 2, 7, 1))
sketch11.addConstraint(Sketcher.Constraint("Coincident", 7, 2, 4, 1))
sketch11.addConstraint(Sketcher.Constraint("Vertical", 0))
sketch11.addConstraint(Sketcher.Constraint("Horizontal", 1))
sketch11.addConstraint(Sketcher.Constraint("Vertical", 2))
sketch11.addConstraint(Sketcher.Constraint("Horizontal", 3))
sketch11.addConstraint(Sketcher.Constraint("Vertical", 4))
sketch11.addConstraint(Sketcher.Constraint("Horizontal", 5))
sketch11.addConstraint(Sketcher.Constraint("Vertical", 6))
sketch11.addConstraint(Sketcher.Constraint("Horizontal", 7))
sketch11.addConstraint(Sketcher.Constraint("Horizontal", 1, 2, 4, 2))
sketch11.addConstraint(Sketcher.Constraint("Horizontal", 3, 2, 6, 2))
sketch11.addConstraint(Sketcher.Constraint("DistanceX", 1, 1, 1, 2, Q("3 mm")))
sketch11.addConstraint(Sketcher.Constraint("DistanceX", 5, 1, 5, 2, Q("2 mm")))
sketch11.addConstraint(Sketcher.Constraint("DistanceY", 0, 2, 0, 1, Q("5 mm")))
sketch11.addConstraint(Sketcher.Constraint("DistanceX", 1, 2, 4, 2, Q("5 mm")))
sketch11.addConstraint(Sketcher.Constraint("DistanceX", -1, 1, 0, 2, Q("33.5 mm")))
sketch11.addConstraint(Sketcher.Constraint("DistanceY", 0, 2, -1, 1, Q("17.5 mm")))
pocket7 = body.newObject("PartDesign::Pocket", "Pocket006")
pocket7.Profile = sketch11
pocket7.Length = 5

doc.recompute()
